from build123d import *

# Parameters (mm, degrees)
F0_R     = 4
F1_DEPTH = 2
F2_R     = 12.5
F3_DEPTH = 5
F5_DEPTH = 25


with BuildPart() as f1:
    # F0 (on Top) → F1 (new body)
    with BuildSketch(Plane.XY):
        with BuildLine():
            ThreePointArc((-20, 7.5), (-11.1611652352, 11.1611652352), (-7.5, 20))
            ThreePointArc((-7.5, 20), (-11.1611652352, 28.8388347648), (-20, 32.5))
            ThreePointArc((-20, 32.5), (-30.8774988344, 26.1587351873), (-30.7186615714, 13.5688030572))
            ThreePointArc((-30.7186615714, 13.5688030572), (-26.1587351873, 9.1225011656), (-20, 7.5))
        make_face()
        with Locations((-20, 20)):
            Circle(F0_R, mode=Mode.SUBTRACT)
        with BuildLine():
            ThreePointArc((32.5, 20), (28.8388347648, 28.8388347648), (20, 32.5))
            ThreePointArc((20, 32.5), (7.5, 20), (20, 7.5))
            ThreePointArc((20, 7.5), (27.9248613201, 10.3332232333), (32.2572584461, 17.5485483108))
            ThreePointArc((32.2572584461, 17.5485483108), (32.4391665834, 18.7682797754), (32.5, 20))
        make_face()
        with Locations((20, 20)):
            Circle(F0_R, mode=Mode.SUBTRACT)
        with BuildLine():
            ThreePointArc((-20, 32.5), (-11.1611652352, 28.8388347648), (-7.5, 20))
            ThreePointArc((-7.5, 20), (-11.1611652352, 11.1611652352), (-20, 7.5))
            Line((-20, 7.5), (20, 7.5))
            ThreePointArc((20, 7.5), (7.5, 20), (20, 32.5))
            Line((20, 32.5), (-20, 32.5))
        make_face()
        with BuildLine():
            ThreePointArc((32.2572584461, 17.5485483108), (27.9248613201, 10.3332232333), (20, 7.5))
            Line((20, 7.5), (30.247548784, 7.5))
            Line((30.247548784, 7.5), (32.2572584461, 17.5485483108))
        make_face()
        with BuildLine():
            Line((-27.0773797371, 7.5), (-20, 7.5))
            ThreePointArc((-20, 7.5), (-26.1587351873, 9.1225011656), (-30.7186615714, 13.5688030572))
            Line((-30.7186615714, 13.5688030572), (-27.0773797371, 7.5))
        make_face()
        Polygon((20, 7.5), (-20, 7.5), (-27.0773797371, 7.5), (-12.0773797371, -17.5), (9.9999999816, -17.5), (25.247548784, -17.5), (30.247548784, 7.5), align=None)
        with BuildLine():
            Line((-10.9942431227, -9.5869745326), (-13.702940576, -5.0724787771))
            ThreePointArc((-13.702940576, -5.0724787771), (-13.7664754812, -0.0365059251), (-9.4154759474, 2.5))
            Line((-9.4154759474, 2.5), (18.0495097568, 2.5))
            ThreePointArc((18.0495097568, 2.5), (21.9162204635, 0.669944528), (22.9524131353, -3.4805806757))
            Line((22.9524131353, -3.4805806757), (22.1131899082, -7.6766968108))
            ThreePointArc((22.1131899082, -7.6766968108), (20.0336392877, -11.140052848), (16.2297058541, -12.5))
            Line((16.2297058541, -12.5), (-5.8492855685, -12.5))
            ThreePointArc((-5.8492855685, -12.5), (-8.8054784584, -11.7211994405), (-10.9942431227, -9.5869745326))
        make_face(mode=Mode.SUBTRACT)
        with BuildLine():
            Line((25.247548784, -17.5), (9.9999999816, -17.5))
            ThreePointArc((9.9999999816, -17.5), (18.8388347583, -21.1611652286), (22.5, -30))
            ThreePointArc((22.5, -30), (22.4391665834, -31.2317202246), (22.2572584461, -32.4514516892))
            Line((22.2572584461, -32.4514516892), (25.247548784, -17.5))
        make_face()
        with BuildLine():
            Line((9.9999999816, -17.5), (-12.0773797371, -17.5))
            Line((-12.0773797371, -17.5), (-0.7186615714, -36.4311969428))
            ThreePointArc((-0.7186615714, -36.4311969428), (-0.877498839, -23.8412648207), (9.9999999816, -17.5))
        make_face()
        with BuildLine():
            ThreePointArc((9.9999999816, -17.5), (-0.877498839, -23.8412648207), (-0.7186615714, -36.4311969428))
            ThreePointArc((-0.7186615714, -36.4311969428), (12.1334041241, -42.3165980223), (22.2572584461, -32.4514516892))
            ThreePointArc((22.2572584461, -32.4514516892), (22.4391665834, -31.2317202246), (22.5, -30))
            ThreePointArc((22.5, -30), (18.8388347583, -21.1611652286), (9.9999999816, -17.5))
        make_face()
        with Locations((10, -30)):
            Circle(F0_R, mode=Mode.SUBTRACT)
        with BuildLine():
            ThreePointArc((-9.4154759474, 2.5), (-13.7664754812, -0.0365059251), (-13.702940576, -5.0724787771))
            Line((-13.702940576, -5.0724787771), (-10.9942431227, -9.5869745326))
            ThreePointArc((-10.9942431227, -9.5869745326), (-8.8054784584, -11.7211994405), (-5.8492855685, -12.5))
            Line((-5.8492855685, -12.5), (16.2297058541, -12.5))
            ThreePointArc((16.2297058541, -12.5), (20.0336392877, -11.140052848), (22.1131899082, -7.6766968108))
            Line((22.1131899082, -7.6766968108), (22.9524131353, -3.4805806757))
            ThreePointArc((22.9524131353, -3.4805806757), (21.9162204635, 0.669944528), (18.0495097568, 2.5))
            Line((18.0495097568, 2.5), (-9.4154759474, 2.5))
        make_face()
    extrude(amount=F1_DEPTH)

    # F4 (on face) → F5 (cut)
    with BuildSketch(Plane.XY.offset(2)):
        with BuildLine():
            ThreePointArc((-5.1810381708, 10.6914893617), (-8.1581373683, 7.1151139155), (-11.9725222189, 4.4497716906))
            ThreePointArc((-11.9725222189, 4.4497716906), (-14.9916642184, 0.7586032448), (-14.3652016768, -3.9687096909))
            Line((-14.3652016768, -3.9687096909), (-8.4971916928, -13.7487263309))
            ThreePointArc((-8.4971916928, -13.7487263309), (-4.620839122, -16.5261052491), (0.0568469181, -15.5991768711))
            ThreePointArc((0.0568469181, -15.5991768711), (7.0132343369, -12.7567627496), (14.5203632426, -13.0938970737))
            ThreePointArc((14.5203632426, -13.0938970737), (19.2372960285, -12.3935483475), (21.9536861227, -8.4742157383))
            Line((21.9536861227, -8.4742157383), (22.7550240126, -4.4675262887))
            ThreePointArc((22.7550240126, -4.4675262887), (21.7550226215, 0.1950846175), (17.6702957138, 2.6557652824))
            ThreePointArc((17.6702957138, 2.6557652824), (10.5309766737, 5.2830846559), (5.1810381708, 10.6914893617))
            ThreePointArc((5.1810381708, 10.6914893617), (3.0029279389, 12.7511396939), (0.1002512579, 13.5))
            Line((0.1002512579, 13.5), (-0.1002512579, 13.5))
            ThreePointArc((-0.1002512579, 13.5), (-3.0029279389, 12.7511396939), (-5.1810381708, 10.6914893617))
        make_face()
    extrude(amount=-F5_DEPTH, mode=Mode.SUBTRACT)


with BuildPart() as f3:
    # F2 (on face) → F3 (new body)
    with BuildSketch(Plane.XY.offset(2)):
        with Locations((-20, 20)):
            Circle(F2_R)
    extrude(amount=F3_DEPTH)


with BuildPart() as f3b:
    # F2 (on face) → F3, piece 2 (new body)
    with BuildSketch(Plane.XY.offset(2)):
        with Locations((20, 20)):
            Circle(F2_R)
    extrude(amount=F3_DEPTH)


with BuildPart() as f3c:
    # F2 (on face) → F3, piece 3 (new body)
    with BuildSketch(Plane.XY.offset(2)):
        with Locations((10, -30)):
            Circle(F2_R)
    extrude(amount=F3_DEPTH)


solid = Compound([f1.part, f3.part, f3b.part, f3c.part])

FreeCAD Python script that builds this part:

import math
import FreeCAD as App
import Part
import Sketcher

V = App.Vector
Q = App.Units.Quantity

doc = App.newDocument("Part")
body = doc.addObject("PartDesign::Body", "Body")

sketch1 = body.newObject("Sketcher::SketchObject", "Sketch")
sketch1.AttachmentSupport = (doc.getObject("XY_Plane"), [""])
sketch1.MapMode = "FlatFace"
sketch1.addGeometry(Part.LineSegment(V(30.2, 7.5, 0), V(32.3, 17.5, 0)), False)
sketch1.addGeometry(Part.ArcOfCircle(Part.Circle(V(20, 20, 0), V(0, 0, 1), 12.5), math.radians(-11.31), math.radians(0)), False)
sketch1.addGeometry(Part.ArcOfCircle(Part.Circle(V(20, 20, 0), V(0, 0, 1), 12.5), math.radians(0), math.radians(90)), False)
sketch1.addGeometry(Part.LineSegment(V(20, 32.5, 0), V(-20, 32.5, 0)), False)
sketch1.addGeometry(Part.ArcOfCircle(Part.Circle(V(-20, 20, 0), V(0, 0, 1), 12.5), math.radians(90), math.radians(211)), False)
sketch1.addGeometry(Part.LineSegment(V(-30.7, 13.6, 0), V(-27.1, 7.5, 0)), False)
sketch1.addGeometry(Part.LineSegment(V(-27.1, 7.5, 0), V(-0.7, -36.4, 0)), False)
sketch1.addGeometry(Part.ArcOfCircle(Part.Circle(V(10, -30, 0), V(0, 0, 1), 12.5), math.radians(-149), math.radians(-11)), False)
sketch1.addGeometry(Part.LineSegment(V(22.3, -32.5, 0), V(25.2, -17.5, 0)), False)
sketch1.addGeometry(Part.LineSegment(V(25.2, -17.5, 0), V(30.2, 7.5, 0)), False)
sketch1.addGeometry(Part.Circle(V(10, -30, 0), V(0, 0, 1), 4), False)
sketch1.addGeometry(Part.Circle(V(-20, 20, 0), V(0, 0, 1), 4), False)
sketch1.addGeometry(Part.Circle(V(20, 20, 0), V(0, 0, 1), 4), False)
sketch1.addConstraint(Sketcher.Constraint("Tangent", 0, 2, 1, 1))
sketch1.addConstraint(Sketcher.Constraint("Tangent", 1, 2, 2, 1))
sketch1.addConstraint(Sketcher.Constraint("Tangent", 2, 2, 3, 1))
sketch1.addConstraint(Sketcher.Constraint("Tangent", 3, 2, 4, 1))
sketch1.addConstraint(Sketcher.Constraint("Tangent", 4, 2, 5, 1))
sketch1.addConstraint(Sketcher.Constraint("Coincident", 5, 2, 6, 1))
sketch1.addConstraint(Sketcher.Constraint("Tangent", 6, 2, 7, 1))
sketch1.addConstraint(Sketcher.Constraint("Tangent", 7, 2, 8, 1))
sketch1.addConstraint(Sketcher.Constraint("Coincident", 8, 2, 9, 1))
sketch1.addConstraint(Sketcher.Constraint("Coincident", 9, 2, 0, 1))
sketch1.addConstraint(Sketcher.Constraint("Horizontal", 3))
sketch1.addConstraint(Sketcher.Constraint("Coincident", 10, 3, 7, 3))
sketch1.addConstraint(Sketcher.Constraint("Coincident", 11, 3, 4, 3))
sketch1.addConstraint(Sketcher.Constraint("Coincident", 12, 3, 1, 3))
sketch1.addConstraint(Sketcher.Constraint("Equal", 1, 2))
sketch1.addConstraint(Sketcher.Constraint("Equal", 2, 4))
sketch1.addConstraint(Sketcher.Constraint("Equal", 4, 7))
sketch1.addConstraint(Sketcher.Constraint("Equal", 10, 11))
sketch1.addConstraint(Sketcher.Constraint("Equal", 11, 12))
sketch1.addConstraint(Sketcher.Constraint("Parallel", 5, 6))
sketch1.addConstraint(Sketcher.Constraint("Parallel", 0, 8))
sketch1.addConstraint(Sketcher.Constraint("Parallel", 8, 9))
sketch1.addConstraint(Sketcher.Constraint("Horizontal", 12, 3, 1, 2))
sketch1.addConstraint(Sketcher.Constraint("Horizontal", 5, 2, 9, 2))
sketch1.addConstraint(Sketcher.Constraint("Diameter", 10, Q("8 mm")))
sketch1.addConstraint(Sketcher.Constraint("Radius", 1, Q("12.5 mm")))
sketch1.addConstraint(Sketcher.Constraint("DistanceX", 3, 2, 3, 1, Q("40 mm")))
sketch1.addConstraint(Sketcher.Constraint("DistanceX", -1, 1, 1, 3, Q("20 mm")))
sketch1.addConstraint(Sketcher.Constraint("DistanceY", -1, 1, 1, 3, Q("20 mm")))
sketch1.addConstraint(Sketcher.Constraint("DistanceX", -1, 1, 7, 3, Q("10 mm")))
sketch1.addConstraint(Sketcher.Constraint("DistanceY", 7, 3, -1, 1, Q("30 mm")))
sketch1.addConstraint(Sketcher.Constraint("DistanceY", 5, 2, 3, 2, Q("25 mm")))
sketch1.addConstraint(Sketcher.Constraint("DistanceY", 8, 2, -1, 1, Q("17.5 mm")))
pad1 = body.newObject("PartDesign::Pad", "Pad")
pad1.Profile = sketch1
pad1.Length = 2

sketch2 = body.newObject("Sketcher::SketchObject", "Sketch001")
sketch2.AttachmentSupport = (doc.getObject("XY_Plane"), [""])
sketch2.MapMode = "FlatFace"
sketch2.AttachmentOffset = App.Placement(V(0, 0, 2), App.Rotation())
sketch2.addGeometry(Part.ArcOfCircle(Part.Circle(V(-20, 20, 0), V(0, 0, 1), 17.5), math.radians(-63), math.radians(-32)), False)
sketch2.addGeometry(Part.ArcOfCircle(Part.Circle(V(-9.22, -0.88, 0), V(0, 0, 1), 6), math.radians(117), math.radians(211)), False)
sketch2.addGeometry(Part.LineSegment(V(-14.37, -3.97, 0), V(-8.5, -13.75, 0)), False)
sketch2.addGeometry(Part.ArcOfCircle(Part.Circle(V(-3.35, -10.66, 0), V(0, 0, 1), 6), math.radians(-149), math.radians(-55)), False)
sketch2.addGeometry(Part.ArcOfCircle(Part.Circle(V(10, -30, 0), V(0, 0, 1), 17.5), math.radians(75), math.radians(125)), False)
sketch2.addGeometry(Part.ArcOfCircle(Part.Circle(V(16.07, -7.3, 0), V(0, 0, 1), 6), math.radians(-105), math.radians(-11)), False)
sketch2.addGeometry(Part.LineSegment(V(21.95, -8.47, 0), V(22.76, -4.47, 0)), False)
sketch2.addGeometry(Part.ArcOfCircle(Part.Circle(V(16.87, -3.29, 0), V(0, 0, 1), 6), math.radians(-11), math.radians(82)), False)
sketch2.addGeometry(Part.ArcOfCircle(Part.Circle(V(20, 20, 0), V(0, 0, 1), 17.5), math.radians(-148), math.radians(-98)), False)
sketch2.addGeometry(Part.ArcOfCircle(Part.Circle(V(0.1, 7.5, 0), V(0, 0, 1), 6), math.radians(32), math.radians(90)), False)
sketch2.addGeometry(Part.LineSegment(V(0.1, 13.5, 0), V(-0.1, 13.5, 0)), False)
sketch2.addGeometry(Part.ArcOfCircle(Part.Circle(V(-0.1, 7.5, 0), V(0, 0, 1), 6), math.radians(90), math.radians(148)), False)
sketch2.addConstraint(Sketcher.Constraint("Tangent", 0, 1, 1, 1))
sketch2.addConstraint(Sketcher.Constraint("Tangent", 1, 2, 2, 1))
sketch2.addConstraint(Sketcher.Constraint("Tangent", 2, 2, 3, 1))
sketch2.addConstraint(Sketcher.Constraint("Tangent", 3, 2, 4, 2))
sketch2.addConstraint(Sketcher.Constraint("Tangent", 4, 1, 5, 1))
sketch2.addConstraint(Sketcher.Constraint("Tangent", 5, 2, 6, 1))
sketch2.addConstraint(Sketcher.Constraint("Tangent", 6, 2, 7, 1))
sketch2.addConstraint(Sketcher.Constraint("Tangent", 7, 2, 8, 2))
sketch2.addConstraint(Sketcher.Constraint("Tangent", 8, 1, 9, 1))
sketch2.addConstraint(Sketcher.Constraint("Tangent", 9, 2, 10, 1))
sketch2.addConstraint(Sketcher.Constraint("Tangent", 10, 2, 11, 1))
sketch2.addConstraint(Sketcher.Constraint("Tangent", 11, 2, 0, 2))
sketch2.addConstraint(Sketcher.Constraint("Horizontal", 10))
sketch2.addConstraint(Sketcher.Constraint("Equal", 1, 3))
sketch2.addConstraint(Sketcher.Constraint("Equal", 0, 4))
sketch2.addConstraint(Sketcher.Constraint("Equal", 3, 5))
sketch2.addConstraint(Sketcher.Constraint("Equal", 5, 7))
sketch2.addConstraint(Sketcher.Constraint("Equal", 4, 8))
sketch2.addConstraint(Sketcher.Constraint("Equal", 7, 9))
sketch2.addConstraint(Sketcher.Constraint("Equal", 9, 11))
sketch2.addConstraint(Sketcher.Constraint("Symmetric", 0, 3, 8, 3, -2))
sketch2.addConstraint(Sketcher.Constraint("Radius", 1, Q("6 mm")))
sketch2.addConstraint(Sketcher.Constraint("Radius", 0, Q("17.5 mm")))
sketch2.addConstraint(Sketcher.Constraint("DistanceX", 0, 3, -1, 1, Q("20 mm")))
sketch2.addConstraint(Sketcher.Constraint("DistanceY", -1, 1, 0, 3, Q("20 mm")))
sketch2.addConstraint(Sketcher.Constraint("DistanceX", -1, 1, 4, 3, Q("10 mm")))
sketch2.addConstraint(Sketcher.Constraint("DistanceY", 4, 3, -1, 1, Q("30 mm")))
sketch2.addConstraint(Sketcher.Constraint("DistanceY", -1, 1, 9, 3, Q("7.5 mm")))
sketch2.addConstraint(Sketcher.Constraint("DistanceX", 1, 2, -1, 1, Q("14.365202 mm")))
sketch2.addConstraint(Sketcher.Constraint("DistanceY", 2, 2, 0, 1, Q("18.198498 mm")))
sketch2.addConstraint(Sketcher.Constraint("DistanceX", 8, 1, 7, 3, Q("11.690502 mm")))
sketch2.addConstraint(Sketcher.Constraint("DistanceY", 5, 3, -1, 1, Q("7.297519 mm")))
pocket1 = body.newObject("PartDesign::Pocket", "Pocket")
pocket1.Profile = sketch2
pocket1.Length = 25
body2 = doc.addObject("PartDesign::Body", "Body001")

sketch3 = body2.newObject("Sketcher::SketchObject", "Sketch002")
sketch3.AttachmentSupport = (doc.getObject("XY_Plane001"), [""])
sketch3.MapMode = "FlatFace"
sketch3.AttachmentOffset = App.Placement(V(0, 0, 2), App.Rotation())
sketch3.addGeometry(Part.Circle(V(-20, 20, 0), V(0, 0, 1), 12), False)
sketch3.addConstraint(Sketcher.Constraint("Diameter", 0, Q("25 mm")))
sketch3.addConstraint(Sketcher.Constraint("DistanceX", 0, 3, -1, 1, Q("20 mm")))
sketch3.addConstraint(Sketcher.Constraint("DistanceY", -1, 1, 0, 3, Q("20 mm")))
pad2 = body2.newObject("PartDesign::Pad", "Pad001")
pad2.Profile = sketch3
pad2.Length = 5
body3 = doc.addObject("PartDesign::Body", "Body002")

sketch4 = body3.newObject("Sketcher::SketchObject", "Sketch003")
sketch4.AttachmentSupport = (doc.getObject("XY_Plane002"), [""])
sketch4.MapMode = "FlatFace"
sketch4.AttachmentOffset = App.Placement(V(0, 0, 2), App.Rotation())
sketch4.addGeometry(Part.Circle(V(20, 20, 0), V(0, 0, 1), 12), False)
sketch4.addConstraint(Sketcher.Constraint("Diameter", 0, Q("25 mm")))
sketch4.addConstraint(Sketcher.Constraint("DistanceX", -1, 1, 0, 3, Q("20 mm")))
sketch4.addConstraint(Sketcher.Constraint("DistanceY", -1, 1, 0, 3, Q("20 mm")))
pad3 = body3.newObject("PartDesign::Pad", "Pad002")
pad3.Profile = sketch4
pad3.Length = 5
body4 = doc.addObject("PartDesign::Body", "Body003")

sketch5 = body4.newObject("Sketcher::SketchObject", "Sketch004")
sketch5.AttachmentSupport = (doc.getObject("XY_Plane003"), [""])
sketch5.MapMode = "FlatFace"
sketch5.AttachmentOffset = App.Placement(V(0, 0, 2), App.Rotation())
sketch5.addGeometry(Part.Circle(V(10, -30, 0), V(0, 0, 1), 12), False)
sketch5.addConstraint(Sketcher.Constraint("Diameter", 0, Q("25 mm")))
sketch5.addConstraint(Sketcher.Constraint("DistanceX", -1, 1, 0, 3, Q("10 mm")))
sketch5.addConstraint(Sketcher.Constraint("DistanceY", 0, 3, -1, 1, Q("30 mm")))
pad4 = body4.newObject("PartDesign::Pad", "Pad003")
pad4.Profile = sketch5
pad4.Length = 5

doc.recompute()
